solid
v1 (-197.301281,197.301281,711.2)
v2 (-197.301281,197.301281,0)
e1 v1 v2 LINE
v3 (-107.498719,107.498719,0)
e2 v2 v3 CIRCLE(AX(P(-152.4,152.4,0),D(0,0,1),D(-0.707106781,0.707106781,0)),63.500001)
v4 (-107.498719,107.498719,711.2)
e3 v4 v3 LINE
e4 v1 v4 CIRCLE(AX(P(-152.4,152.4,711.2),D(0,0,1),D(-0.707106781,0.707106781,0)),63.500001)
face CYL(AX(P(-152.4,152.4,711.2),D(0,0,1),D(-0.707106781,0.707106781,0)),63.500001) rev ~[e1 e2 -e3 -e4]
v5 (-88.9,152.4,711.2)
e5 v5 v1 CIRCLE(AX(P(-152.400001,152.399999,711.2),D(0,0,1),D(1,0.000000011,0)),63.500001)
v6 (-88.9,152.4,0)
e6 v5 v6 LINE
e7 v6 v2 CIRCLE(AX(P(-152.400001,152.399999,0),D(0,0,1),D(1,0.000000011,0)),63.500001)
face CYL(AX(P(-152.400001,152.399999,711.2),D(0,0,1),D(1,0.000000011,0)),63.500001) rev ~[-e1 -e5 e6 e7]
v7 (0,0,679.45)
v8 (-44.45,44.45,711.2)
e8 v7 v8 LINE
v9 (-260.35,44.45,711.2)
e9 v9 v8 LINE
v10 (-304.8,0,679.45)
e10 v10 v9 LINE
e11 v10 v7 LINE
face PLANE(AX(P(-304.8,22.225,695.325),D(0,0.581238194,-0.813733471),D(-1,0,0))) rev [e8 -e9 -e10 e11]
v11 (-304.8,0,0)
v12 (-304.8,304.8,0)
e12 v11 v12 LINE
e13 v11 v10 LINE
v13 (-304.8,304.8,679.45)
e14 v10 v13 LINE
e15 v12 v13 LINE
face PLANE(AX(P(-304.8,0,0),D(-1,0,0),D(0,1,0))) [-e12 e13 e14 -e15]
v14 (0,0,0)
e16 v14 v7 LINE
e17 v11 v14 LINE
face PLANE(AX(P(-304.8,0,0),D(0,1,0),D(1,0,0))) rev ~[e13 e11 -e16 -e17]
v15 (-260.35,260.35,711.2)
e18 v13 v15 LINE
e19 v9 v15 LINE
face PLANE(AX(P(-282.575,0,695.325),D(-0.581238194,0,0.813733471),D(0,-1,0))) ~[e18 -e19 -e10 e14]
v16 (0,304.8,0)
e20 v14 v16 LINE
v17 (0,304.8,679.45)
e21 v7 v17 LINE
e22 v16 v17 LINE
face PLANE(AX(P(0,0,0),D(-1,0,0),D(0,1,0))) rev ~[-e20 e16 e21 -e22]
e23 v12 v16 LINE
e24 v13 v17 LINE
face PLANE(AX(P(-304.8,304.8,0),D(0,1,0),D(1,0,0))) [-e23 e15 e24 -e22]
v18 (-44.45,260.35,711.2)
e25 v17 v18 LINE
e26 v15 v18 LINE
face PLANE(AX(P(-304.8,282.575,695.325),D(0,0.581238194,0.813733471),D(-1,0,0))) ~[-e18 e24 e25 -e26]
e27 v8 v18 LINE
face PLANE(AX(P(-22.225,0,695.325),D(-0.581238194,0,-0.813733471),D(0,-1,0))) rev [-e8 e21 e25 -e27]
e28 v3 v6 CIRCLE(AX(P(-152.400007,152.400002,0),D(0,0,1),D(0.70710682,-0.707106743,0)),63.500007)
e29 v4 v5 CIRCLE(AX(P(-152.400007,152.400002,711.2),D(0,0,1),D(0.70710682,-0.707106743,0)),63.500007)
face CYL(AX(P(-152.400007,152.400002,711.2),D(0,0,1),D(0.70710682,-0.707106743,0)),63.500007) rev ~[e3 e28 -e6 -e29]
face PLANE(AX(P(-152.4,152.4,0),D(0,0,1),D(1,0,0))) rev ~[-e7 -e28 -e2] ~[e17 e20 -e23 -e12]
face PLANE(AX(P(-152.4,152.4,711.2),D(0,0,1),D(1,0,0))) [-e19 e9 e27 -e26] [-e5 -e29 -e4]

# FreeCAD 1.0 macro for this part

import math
import FreeCAD as App
import Part
import Sketcher
Q = App.Units.Quantity


def edges_at(feature, points):
    """Names of the edges that pass closest to the given points."""
    edges = feature.Shape.Edges
    near = lambda p: min(range(len(edges)), key=lambda i: edges[i].distToShape(Part.Vertex(*p))[0])
    return sorted({f"Edge{near(p) + 1}" for p in points})

doc = App.newDocument("Part")
params = doc.addObject("Spreadsheet::Sheet", "Params")
for row, (alias, value) in enumerate([
    ("sketch1_width", "12 in"),
    ("pad1_length", "28 in"),
    ("chamfer_size", "1.25 in"),
    ("chamfer_size2", "1.75 in"),
    ("sketch2_radius", "2.5 in"),
], start=1):
    params.set(f"A{row}", alias)
    params.set(f"B{row}", "=" + value)
    params.setAlias(f"B{row}", alias)

body = doc.addObject("PartDesign::Body", "Body")

sketch1 = body.newObject("Sketcher::SketchObject", "Sketch")
sketch1.AttachmentSupport = (doc.getObject("XY_Plane"), [""])
sketch1.MapMode = "FlatFace"
sketch1.addGeometry([
    Part.LineSegment(App.Vector(-305, 305, 0), App.Vector(-305, 0, 0)),
    Part.LineSegment(App.Vector(-305, 0, 0), App.Vector(0, 0, 0)),
    Part.LineSegment(App.Vector(0, 0, 0), App.Vector(0, 305, 0)),
    Part.LineSegment(App.Vector(0, 305, 0), App.Vector(-305, 305, 0)),
], False)
sketch1.addConstraint([
    Sketcher.Constraint("Coincident", 0, 2, 1, 1),
    Sketcher.Constraint("Coincident", 1, 2, 2, 1),
    Sketcher.Constraint("Coincident", 2, 2, 3, 1),
    Sketcher.Constraint("Coincident", 3, 2, 0, 1),
    Sketcher.Constraint("Vertical", 0),
    Sketcher.Constraint("Horizontal", 1),
    Sketcher.Constraint("Vertical", 2),
    Sketcher.Constraint("Horizontal", 3),
    Sketcher.Constraint("Coincident", 1, 2, -1, 1),
    Sketcher.Constraint("Equal", 3, 0),
    Sketcher.Constraint("DistanceX", 1, 1, 1, 2, Q("12 in")),
])
sketch1.setExpression("Constraints[10]", "Params.sketch1_width")
pad1 = body.newObject("PartDesign::Pad", "Pad")
pad1.Profile = sketch1
pad1.setExpression("Length", "Params.pad1_length")
doc.recompute()

chamfer = body.newObject("PartDesign::Chamfer", "Chamfer")
chamfer.Base = (pad1, edges_at(pad1, [
    (-152.4, 0, 711.2),
    (0, 152.4, 711.2),
    (-152.4, 304.8, 711.2),
    (-304.8, 152.4, 711.2),
]))
chamfer.ChamferType = "Two distances"
chamfer.setExpression("Size", "Params.chamfer_size")
chamfer.setExpression("Size2", "Params.chamfer_size2")

sketch2 = body.newObject("Sketcher::SketchObject", "Sketch001")
sketch2.AttachmentSupport = (doc.getObject("XY_Plane"), [""])
sketch2.MapMode = "FlatFace"
sketch2.AttachmentOffset = App.Placement(App.Vector(0, 0, 28 * 25.4), App.Rotation())
sketch2.addGeometry([
    Part.ArcOfCircle(Part.Circle(App.Vector(-152, 152, 0), App.Vector(0, 0, 1), 64), math.radians(0), math.radians(135)),
    Part.ArcOfCircle(Part.Circle(App.Vector(-152, 152, 0), App.Vector(0, 0, 1), 64), math.radians(135), math.radians(315)),
    Part.ArcOfCircle(Part.Circle(App.Vector(-152, 152, 0), App.Vector(0, 0, 1), 64), math.radians(-45), math.radians(0)),
], False)
sketch2.addConstraint([
    Sketcher.Constraint("Tangent", 0, 2, 1, 1),
    Sketcher.Constraint("Tangent", 1, 2, 2, 1),
    Sketcher.Constraint("Tangent", 2, 2, 0, 1),
    Sketcher.Constraint("Horizontal", 1, 3, 2, 2),
    Sketcher.Constraint("Radius", 0, Q("2.5 in")),
    Sketcher.Constraint("DistanceX", 0, 3, -1, 1, Q("6 in")),
    Sketcher.Constraint("DistanceY", -1, 1, 0, 3, Q("6 in")),
    Sketcher.Constraint("DistanceX", 0, 2, -1, 1, Q("197.301281 mm")),
    Sketcher.Constraint("DistanceX", 1, 2, -1, 1, Q("107.498719 mm")),
])
sketch2.setExpression("Constraints[4]", "Params.sketch2_radius")
pocket1 = body.newObject("PartDesign::Pocket", "Pocket")
pocket1.Profile = sketch2
pocket1.Type = "ThroughAll"

doc.recompute()
